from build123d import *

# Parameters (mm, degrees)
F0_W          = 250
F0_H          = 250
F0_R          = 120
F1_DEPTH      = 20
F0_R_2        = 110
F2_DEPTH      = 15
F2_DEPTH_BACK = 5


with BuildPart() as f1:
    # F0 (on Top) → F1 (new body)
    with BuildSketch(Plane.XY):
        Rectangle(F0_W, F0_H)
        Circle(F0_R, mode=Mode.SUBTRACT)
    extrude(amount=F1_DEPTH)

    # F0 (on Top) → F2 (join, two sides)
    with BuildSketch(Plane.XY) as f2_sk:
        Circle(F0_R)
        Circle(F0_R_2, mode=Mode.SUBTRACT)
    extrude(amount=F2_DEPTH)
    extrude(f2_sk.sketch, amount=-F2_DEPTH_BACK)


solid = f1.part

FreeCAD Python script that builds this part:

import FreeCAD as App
import Part
import Sketcher
Q = App.Units.Quantity

doc = App.newDocument("Part")
params = doc.addObject("Spreadsheet::Sheet", "Params")
for row, (alias, value) in enumerate([
    ("sketch1_diameter", "240 mm"),
    ("sketch1_width", "250 mm"),
    ("pad1_length", "20 mm"),
    ("sketch2_diameter", "240 mm"),
    ("sketch2_diameter2", "220 mm"),
    ("pad2_length", "15 mm"),
    ("pad2_length2", "5 mm"),
], start=1):
    params.set(f"A{row}", alias)
    params.set(f"B{row}", "=" + value)
    params.setAlias(f"B{row}", alias)

body = doc.addObject("PartDesign::Body", "Body")

# Sketch on XY plane
sketch1 = body.newObject("Sketcher::SketchObject", "Sketch")
sketch1.AttachmentSupport = (doc.getObject("XY_Plane"), [""])
sketch1.MapMode = "FlatFace"
sketch1.addGeometry(Part.LineSegment(App.Vector(-125, 125, 0), App.Vector(-125, -125, 0)), False)
sketch1.addGeometry(Part.LineSegment(App.Vector(-125, -125, 0), App.Vector(125, -125, 0)), False)
sketch1.addGeometry(Part.LineSegment(App.Vector(125, -125, 0), App.Vector(125, 125, 0)), False)
sketch1.addGeometry(Part.LineSegment(App.Vector(125, 125, 0), App.Vector(-125, 125, 0)), False)
sketch1.addGeometry(Part.Circle(App.Vector(0, 0, 0), App.Vector(0, 0, 1), 120), False)
sketch1.addConstraint(Sketcher.Constraint("Coincident", 0, 2, 1, 1))
sketch1.addConstraint(Sketcher.Constraint("Coincident", 1, 2, 2, 1))
sketch1.addConstraint(Sketcher.Constraint("Coincident", 2, 2, 3, 1))
sketch1.addConstraint(Sketcher.Constraint("Coincident", 3, 2, 0, 1))
sketch1.addConstraint(Sketcher.Constraint("Vertical", 0))
sketch1.addConstraint(Sketcher.Constraint("Horizontal", 1))
sketch1.addConstraint(Sketcher.Constraint("Vertical", 2))
sketch1.addConstraint(Sketcher.Constraint("Horizontal", 3))
sketch1.addConstraint(Sketcher.Constraint("Coincident", 4, 3, -1, 1))
sketch1.addConstraint(Sketcher.Constraint("Symmetric", 0, 2, 2, 2, -1, 1))
sketch1.addConstraint(Sketcher.Constraint("Equal", 3, 0))
sketch1.addConstraint(Sketcher.Constraint("Diameter", 4, Q("240 mm")))
sketch1.addConstraint(Sketcher.Constraint("DistanceX", 1, 1, 1, 2, Q("250 mm")))
sketch1.setExpression("Constraints[11]", "Params.sketch1_diameter")
sketch1.setExpression("Constraints[12]", "Params.sketch1_width")
pad1 = body.newObject("PartDesign::Pad", "Pad")
pad1.Profile = sketch1
pad1.setExpression("Length", "Params.pad1_length")

# Sketch on XY plane
sketch2 = body.newObject("Sketcher::SketchObject", "Sketch001")
sketch2.AttachmentSupport = (doc.getObject("XY_Plane"), [""])
sketch2.MapMode = "FlatFace"
sketch2.addGeometry(Part.Circle(App.Vector(0, 0, 0), App.Vector(0, 0, 1), 120), False)
sketch2.addGeometry(Part.Circle(App.Vector(0, 0, 0), App.Vector(0, 0, 1), 110), False)
sketch2.addConstraint(Sketcher.Constraint("Coincident", 0, 3, -1, 1))
sketch2.addConstraint(Sketcher.Constraint("Coincident", 1, 3, -1, 1))
sketch2.addConstraint(Sketcher.Constraint("Diameter", 0, Q("240 mm")))
sketch2.addConstraint(Sketcher.Constraint("Diameter", 1, Q("220 mm")))
sketch2.setExpression("Constraints[2]", "Params.sketch2_diameter")
sketch2.setExpression("Constraints[3]", "Params.sketch2_diameter2")
pad2 = body.newObject("PartDesign::Pad", "Pad001")
pad2.Profile = sketch2
pad2.Type = "TwoLengths"
pad2.setExpression("Length", "Params.pad2_length")
pad2.setExpression("Length2", "Params.pad2_length2")

doc.recompute()
